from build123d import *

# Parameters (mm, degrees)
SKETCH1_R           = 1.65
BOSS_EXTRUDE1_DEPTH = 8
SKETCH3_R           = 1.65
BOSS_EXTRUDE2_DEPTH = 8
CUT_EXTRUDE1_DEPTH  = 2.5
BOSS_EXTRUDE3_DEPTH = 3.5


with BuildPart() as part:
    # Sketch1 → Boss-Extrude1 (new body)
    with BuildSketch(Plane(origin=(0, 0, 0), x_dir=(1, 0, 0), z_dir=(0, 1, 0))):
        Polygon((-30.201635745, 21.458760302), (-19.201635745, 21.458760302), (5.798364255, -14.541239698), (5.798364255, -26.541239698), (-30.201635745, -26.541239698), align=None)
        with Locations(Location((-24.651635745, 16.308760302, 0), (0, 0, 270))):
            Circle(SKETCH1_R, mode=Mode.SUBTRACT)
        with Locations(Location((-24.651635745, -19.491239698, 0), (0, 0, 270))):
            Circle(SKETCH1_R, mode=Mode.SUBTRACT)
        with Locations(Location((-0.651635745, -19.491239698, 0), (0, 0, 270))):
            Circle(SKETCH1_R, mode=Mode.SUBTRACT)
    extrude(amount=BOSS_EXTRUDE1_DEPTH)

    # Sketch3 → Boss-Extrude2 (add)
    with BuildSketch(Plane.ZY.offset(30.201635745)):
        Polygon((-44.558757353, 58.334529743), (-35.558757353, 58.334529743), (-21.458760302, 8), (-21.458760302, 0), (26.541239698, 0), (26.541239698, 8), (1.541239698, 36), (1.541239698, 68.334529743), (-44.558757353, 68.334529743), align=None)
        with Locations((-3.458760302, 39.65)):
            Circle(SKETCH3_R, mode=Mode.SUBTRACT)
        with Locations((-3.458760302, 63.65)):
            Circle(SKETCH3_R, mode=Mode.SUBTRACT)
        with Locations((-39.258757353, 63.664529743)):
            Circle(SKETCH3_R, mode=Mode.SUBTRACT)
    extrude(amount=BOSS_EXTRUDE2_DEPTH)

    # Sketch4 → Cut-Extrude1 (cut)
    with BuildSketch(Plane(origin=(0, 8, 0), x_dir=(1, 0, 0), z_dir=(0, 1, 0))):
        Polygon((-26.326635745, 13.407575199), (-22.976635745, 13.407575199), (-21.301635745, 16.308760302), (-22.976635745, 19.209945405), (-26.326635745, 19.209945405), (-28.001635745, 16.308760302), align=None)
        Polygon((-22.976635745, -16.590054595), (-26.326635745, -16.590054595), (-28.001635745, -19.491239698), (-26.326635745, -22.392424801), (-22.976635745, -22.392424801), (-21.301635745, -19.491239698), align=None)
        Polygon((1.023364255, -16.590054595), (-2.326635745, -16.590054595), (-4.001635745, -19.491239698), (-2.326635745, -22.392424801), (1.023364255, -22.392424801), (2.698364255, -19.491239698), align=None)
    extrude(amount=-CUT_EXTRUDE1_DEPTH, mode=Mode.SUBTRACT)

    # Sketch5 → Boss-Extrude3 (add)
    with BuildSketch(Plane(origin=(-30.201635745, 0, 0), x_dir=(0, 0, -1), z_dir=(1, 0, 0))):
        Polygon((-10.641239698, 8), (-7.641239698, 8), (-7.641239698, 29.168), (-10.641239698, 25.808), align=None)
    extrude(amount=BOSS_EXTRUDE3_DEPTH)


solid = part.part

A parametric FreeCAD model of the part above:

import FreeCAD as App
import Part
import Sketcher

V = App.Vector
Q = App.Units.Quantity


def add_polygon(sketch, points):
    """Adds a closed chain of lines whose ends are joined by coincident constraints."""
    first, n = sketch.GeometryCount, len(points)
    for a, b in zip(points, points[1:] + points[:1]):
        sketch.addGeometry(Part.LineSegment(App.Vector(*a, 0), App.Vector(*b, 0)), False)
    for i in range(n):
        sketch.addConstraint(Sketcher.Constraint("Coincident", first + i, 2, first + (i + 1) % n, 1))

doc = App.newDocument("Part")
body = doc.addObject("PartDesign::Body", "Body")

sketch1 = body.newObject("Sketcher::SketchObject", "Sketch")
sketch1.AttachmentSupport = (doc.getObject("XZ_Plane"), [""])
sketch1.MapMode = "FlatFace"
add_polygon(sketch1, [(-19.2, -21.5), (-30.2, -21.5), (-30.2, 26.5), (5.8, 26.5), (5.8, 14.5)])
sketch1.addGeometry(Part.Circle(V(-0.7, 19.5, 0), V(0, 0, 1), 1.6), False)
sketch1.addGeometry(Part.Circle(V(-24.7, 19.5, 0), V(0, 0, 1), 1.6), False)
sketch1.addGeometry(Part.Circle(V(-24.7, -16.3, 0), V(0, 0, 1), 1.6), False)
sketch1.addConstraint([
    Sketcher.Constraint("Horizontal", 0),
    Sketcher.Constraint("Vertical", 1),
    Sketcher.Constraint("Horizontal", 2),
    Sketcher.Constraint("Vertical", 3),
    Sketcher.Constraint("Equal", 5, 6),
    Sketcher.Constraint("Equal", 6, 7),
    Sketcher.Constraint("Horizontal", 5, 3, 6, 3),
    Sketcher.Constraint("Vertical", 6, 3, 7, 3),
    Sketcher.Constraint("Diameter", 5, Q("3.3 mm")),
    Sketcher.Constraint("DistanceX", 0, 2, 0, 1, Q("11 mm")),
    Sketcher.Constraint("DistanceX", 2, 1, 2, 2, Q("36 mm")),
    Sketcher.Constraint("DistanceY", 1, 1, 1, 2, Q("48 mm")),
    Sketcher.Constraint("DistanceY", 3, 2, 3, 1, Q("12 mm")),
    Sketcher.Constraint("DistanceX", 6, 3, 5, 3, Q("24 mm")),
    Sketcher.Constraint("DistanceY", 7, 3, 6, 3, Q("35.8 mm")),
    Sketcher.Constraint("DistanceX", 0, 2, 7, 3, Q("5.55 mm")),
    Sketcher.Constraint("DistanceY", 0, 2, 7, 3, Q("5.15 mm")),
    Sketcher.Constraint("DistanceY", -1, 1, 5, 3, Q("19.49124 mm")),
    Sketcher.Constraint("DistanceX", 5, 3, -1, 1, Q("0.651636 mm")),
])
pad1 = body.newObject("PartDesign::Pad", "Pad")
pad1.Profile = sketch1
pad1.Length = 8
pad1.Reversed = True

sketch2 = body.newObject("Sketcher::SketchObject", "Sketch001")
sketch2.AttachmentSupport = (doc.getObject("YZ_Plane"), [""])
sketch2.MapMode = "FlatFace"
sketch2.AttachmentOffset = App.Placement(V(0, 0, -30.201636), App.Rotation())
add_polygon(sketch2, [(58.3, -44.6), (58.3, -35.6), (8, -21.5), (0, -21.5), (0, 26.5), (8, 26.5), (36, 1.5), (68.3, 1.5), (68.3, -44.6)])
sketch2.addGeometry(Part.Circle(V(39.6, -3.5, 0), V(0, 0, 1), 1.6), False)
sketch2.addGeometry(Part.Circle(V(63.7, -39.3, 0), V(0, 0, 1), 1.6), False)
sketch2.addGeometry(Part.Circle(V(63.6, -3.5, 0), V(0, 0, 1), 1.6), False)
sketch2.addConstraint([
    Sketcher.Constraint("Vertical", 0),
    Sketcher.Constraint("Horizontal", 2),
    Sketcher.Constraint("Vertical", 3),
    Sketcher.Constraint("Horizontal", 4),
    Sketcher.Constraint("Horizontal", 6),
    Sketcher.Constraint("Vertical", 7),
    Sketcher.Constraint("Horizontal", 8),
    Sketcher.Constraint("Equal", 9, 10),
    Sketcher.Constraint("Equal", 10, 11),
    Sketcher.Constraint("PointOnObject", 2, 2, -2),
    Sketcher.Constraint("Horizontal", 9, 3, 11, 3),
    Sketcher.Constraint("Vertical", 1, 2, 4, 2),
    Sketcher.Constraint("Diameter", 9, Q("3.3 mm")),
    Sketcher.Constraint("DistanceX", 2, 2, 2, 1, Q("8 mm")),
    Sketcher.Constraint("DistanceX", 8, 2, 8, 1, Q("10 mm")),
    Sketcher.Constraint("DistanceY", 0, 1, 0, 2, Q("9 mm")),
    Sketcher.Constraint("DistanceY", 3, 1, 3, 2, Q("48 mm")),
    Sketcher.Constraint("DistanceX", -1, 1, 5, 2, Q("36 mm")),
    Sketcher.Constraint("DistanceX", 9, 3, 11, 3, Q("24 mm")),
    Sketcher.Constraint("DistanceY", 1, 2, 9, 3, Q("18 mm")),
    Sketcher.Constraint("DistanceY", 9, 3, 5, 2, Q("5 mm")),
    Sketcher.Constraint("DistanceY", 10, 3, 0, 2, Q("3.7 mm")),
    Sketcher.Constraint("DistanceX", -1, 1, 9, 3, Q("39.65 mm")),
    Sketcher.Constraint("DistanceX", 0, 2, 10, 3, Q("5.33 mm")),
    Sketcher.Constraint("DistanceX", 6, 1, 6, 2, Q("32.33453 mm")),
    Sketcher.Constraint("DistanceY", 7, 2, 7, 1, Q("46.099997 mm")),
    Sketcher.Constraint("DistanceY", 9, 3, -1, 1, Q("3.45876 mm")),
])
pad2 = body.newObject("PartDesign::Pad", "Pad001")
pad2.Profile = sketch2
pad2.Length = 8
pad2.Reversed = True

sketch3 = body.newObject("Sketcher::SketchObject", "Sketch002")
sketch3.AttachmentSupport = (doc.getObject("XZ_Plane"), [""])
sketch3.MapMode = "FlatFace"
sketch3.AttachmentOffset = App.Placement(V(0, 0, -8), App.Rotation())
add_polygon(sketch3, [(-26.3, -13.4), (-23, -13.4), (-21.3, -16.3), (-23, -19.2), (-26.3, -19.2), (-28, -16.3)])
add_polygon(sketch3, [(-23, 16.6), (-26.3, 16.6), (-28, 19.5), (-26.3, 22.4), (-23, 22.4), (-21.3, 19.5)])
add_polygon(sketch3, [(1, 16.6), (-2.3, 16.6), (-4, 19.5), (-2.3, 22.4), (1, 22.4), (2.7, 19.5)])
sketch3.addConstraint([
    Sketcher.Constraint("Horizontal", 0),
    Sketcher.Constraint("Horizontal", 3),
    Sketcher.Constraint("Horizontal", 6),
    Sketcher.Constraint("Horizontal", 9),
    Sketcher.Constraint("Horizontal", 12),
    Sketcher.Constraint("Horizontal", 15),
    Sketcher.Constraint("Parallel", 1, 4),
    Sketcher.Constraint("Parallel", 2, 5),
    Sketcher.Constraint("Parallel", 4, 7),
    Sketcher.Constraint("Parallel", 5, 8),
    Sketcher.Constraint("Parallel", 7, 10),
    Sketcher.Constraint("Parallel", 8, 11),
    Sketcher.Constraint("Parallel", 10, 13),
    Sketcher.Constraint("Parallel", 11, 14),
    Sketcher.Constraint("Parallel", 13, 16),
    Sketcher.Constraint("Parallel", 14, 17),
    Sketcher.Constraint("Horizontal", 1, 2, 4, 2),
    Sketcher.Constraint("Horizontal", 7, 2, 10, 2),
    Sketcher.Constraint("Horizontal", 11, 2, 12, 2),
    Sketcher.Constraint("Horizontal", 10, 2, 13, 2),
    Sketcher.Constraint("Horizontal", 9, 2, 14, 2),
    Sketcher.Constraint("Horizontal", 13, 2, 16, 2),
    Sketcher.Constraint("Vertical", 0, 2, 2, 2),
    Sketcher.Constraint("Vertical", 3, 2, 5, 2),
    Sketcher.Constraint("Vertical", 5, 2, 6, 2),
    Sketcher.Constraint("Vertical", 4, 2, 7, 2),
    Sketcher.Constraint("Vertical", 6, 2, 8, 2),
    Sketcher.Constraint("Vertical", 2, 2, 9, 2),
    Sketcher.Constraint("Equal", 9, 12),
    Sketcher.Constraint("Angle", 1, Q("-60 deg")),
    Sketcher.Constraint("DistanceX", 6, 2, 12, 2, Q("24 mm")),
    Sketcher.Constraint("DistanceX", 0, 1, 0, 2, Q("3.35 mm")),
    Sketcher.Constraint("DistanceX", 4, 2, 1, 2, Q("6.7 mm")),
    Sketcher.Constraint("DistanceY", 3, 2, 6, 2, Q("35.8 mm")),
    Sketcher.Constraint("DistanceY", 1, 2, -1, 1, Q("16.30876 mm")),
    Sketcher.Constraint("DistanceX", 0, 2, -1, 1, Q("22.976636 mm")),
])
pocket1 = body.newObject("PartDesign::Pocket", "Pocket")
pocket1.Profile = sketch3
pocket1.Length = 2.5
pocket1.Reversed = True

sketch4 = body.newObject("Sketcher::SketchObject", "Sketch003")
sketch4.AttachmentSupport = (doc.getObject("YZ_Plane"), [""])
sketch4.MapMode = "FlatFace"
sketch4.AttachmentOffset = App.Placement(V(0, 0, -30.201636), App.Rotation())
add_polygon(sketch4, [(8, 10.6), (8, 7.6), (29.2, 7.6), (25.8, 10.6)])
sketch4.addConstraint([
    Sketcher.Constraint("Vertical", 0),
    Sketcher.Constraint("Horizontal", 1),
    Sketcher.Constraint("Horizontal", 3),
    Sketcher.Constraint("DistanceY", 0, 2, 0, 1, Q("3 mm")),
    Sketcher.Constraint("DistanceX", -1, 1, 0, 2, Q("8 mm")),
    Sketcher.Constraint("DistanceX", 1, 1, 1, 2, Q("21.168 mm")),
    Sketcher.Constraint("DistanceX", 3, 2, 3, 1, Q("17.808 mm")),
    Sketcher.Constraint("DistanceY", -1, 1, 0, 2, Q("7.64124 mm")),
])
pad3 = body.newObject("PartDesign::Pad", "Pad002")
pad3.Profile = sketch4
pad3.Length = 3.5

doc.recompute()
